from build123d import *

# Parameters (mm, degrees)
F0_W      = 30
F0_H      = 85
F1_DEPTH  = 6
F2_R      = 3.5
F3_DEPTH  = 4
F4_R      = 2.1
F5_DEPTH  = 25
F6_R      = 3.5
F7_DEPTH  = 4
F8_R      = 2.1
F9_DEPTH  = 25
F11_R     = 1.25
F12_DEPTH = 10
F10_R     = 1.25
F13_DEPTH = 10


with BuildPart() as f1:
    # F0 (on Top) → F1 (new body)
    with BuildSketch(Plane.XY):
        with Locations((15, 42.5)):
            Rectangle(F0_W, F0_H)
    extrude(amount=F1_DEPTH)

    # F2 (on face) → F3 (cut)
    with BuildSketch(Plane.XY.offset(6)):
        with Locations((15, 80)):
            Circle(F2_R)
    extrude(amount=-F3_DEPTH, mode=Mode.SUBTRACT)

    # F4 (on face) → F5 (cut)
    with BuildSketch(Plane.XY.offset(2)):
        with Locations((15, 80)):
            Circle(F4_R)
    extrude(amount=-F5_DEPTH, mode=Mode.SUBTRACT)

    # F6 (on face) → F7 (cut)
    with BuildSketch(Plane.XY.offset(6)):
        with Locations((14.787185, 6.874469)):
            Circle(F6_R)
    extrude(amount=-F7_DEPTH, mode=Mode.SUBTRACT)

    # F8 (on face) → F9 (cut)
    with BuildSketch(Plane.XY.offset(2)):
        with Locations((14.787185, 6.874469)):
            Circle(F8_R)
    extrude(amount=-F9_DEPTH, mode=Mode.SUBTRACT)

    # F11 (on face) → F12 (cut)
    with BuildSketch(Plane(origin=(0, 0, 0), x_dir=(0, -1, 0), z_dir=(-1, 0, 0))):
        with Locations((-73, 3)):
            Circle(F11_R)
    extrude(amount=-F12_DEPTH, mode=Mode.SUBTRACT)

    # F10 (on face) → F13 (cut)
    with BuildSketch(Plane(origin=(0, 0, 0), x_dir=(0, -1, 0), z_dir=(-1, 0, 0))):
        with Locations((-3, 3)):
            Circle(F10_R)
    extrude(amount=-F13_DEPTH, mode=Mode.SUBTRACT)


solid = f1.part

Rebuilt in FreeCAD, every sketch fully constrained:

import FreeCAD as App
import Part
import Sketcher

V = App.Vector


def add_polygon(sketch, points):
    """Adds a closed chain of lines whose ends are joined by coincident constraints."""
    first, n = sketch.GeometryCount, len(points)
    for a, b in zip(points, points[1:] + points[:1]):
        sketch.addGeometry(Part.LineSegment(App.Vector(*a, 0), App.Vector(*b, 0)), False)
    for i in range(n):
        sketch.addConstraint(Sketcher.Constraint("Coincident", first + i, 2, first + (i + 1) % n, 1))

doc = App.newDocument("Part")
body = doc.addObject("PartDesign::Body", "Body")

sketch1 = body.newObject("Sketcher::SketchObject", "Sketch")
sketch1.AttachmentSupport = (doc.getObject("XY_Plane"), [""])
sketch1.MapMode = "FlatFace"
add_polygon(sketch1, [(0, 85), (0, 0), (30, 0), (30, 85)])
sketch1.addConstraint(Sketcher.Constraint("Vertical", 0))
sketch1.addConstraint(Sketcher.Constraint("Horizontal", 1))
sketch1.addConstraint(Sketcher.Constraint("Vertical", 2))
sketch1.addConstraint(Sketcher.Constraint("Horizontal", 3))
sketch1.addConstraint(Sketcher.Constraint("Coincident", 0, 2, -1, 1))
sketch1.addConstraint(Sketcher.Constraint("DistanceX", 1, 1, 1, 2, 30.0))
sketch1.addConstraint(Sketcher.Constraint("DistanceY", 0, 2, 0, 1, 85.0))
pad1 = body.newObject("PartDesign::Pad", "Pad")
pad1.Profile = sketch1
pad1.Length = 6

sketch2 = body.newObject("Sketcher::SketchObject", "Sketch001")
sketch2.AttachmentSupport = (doc.getObject("XY_Plane"), [""])
sketch2.MapMode = "FlatFace"
sketch2.AttachmentOffset = App.Placement(V(0, 0, 6), App.Rotation())
sketch2.addGeometry(Part.Circle(V(15, 80, 0), V(0, 0, 1), 3.5), False)
sketch2.addConstraint(Sketcher.Constraint("Diameter", 0, 7.0))
sketch2.addConstraint(Sketcher.Constraint("DistanceX", -1, 1, 0, 3, 15.0))
sketch2.addConstraint(Sketcher.Constraint("DistanceY", -1, 1, 0, 3, 80.0))
pocket1 = body.newObject("PartDesign::Pocket", "Pocket")
pocket1.Profile = sketch2
pocket1.Length = 4

sketch3 = body.newObject("Sketcher::SketchObject", "Sketch002")
sketch3.AttachmentSupport = (doc.getObject("XY_Plane"), [""])
sketch3.MapMode = "FlatFace"
sketch3.AttachmentOffset = App.Placement(V(0, 0, 2), App.Rotation())
sketch3.addGeometry(Part.Circle(V(15, 80, 0), V(0, 0, 1), 2.1), False)
sketch3.addConstraint(Sketcher.Constraint("Diameter", 0, 4.2))
sketch3.addConstraint(Sketcher.Constraint("DistanceX", -1, 1, 0, 3, 15.0))
sketch3.addConstraint(Sketcher.Constraint("DistanceY", -1, 1, 0, 3, 80.0))
pocket2 = body.newObject("PartDesign::Pocket", "Pocket001")
pocket2.Profile = sketch3
pocket2.Length = 25

sketch4 = body.newObject("Sketcher::SketchObject", "Sketch003")
sketch4.AttachmentSupport = (doc.getObject("XY_Plane"), [""])
sketch4.MapMode = "FlatFace"
sketch4.AttachmentOffset = App.Placement(V(0, 0, 6), App.Rotation())
sketch4.addGeometry(Part.Circle(V(14.8, 6.9, 0), V(0, 0, 1), 3.5), False)
sketch4.addConstraint(Sketcher.Constraint("Diameter", 0, 7.0))
sketch4.addConstraint(Sketcher.Constraint("DistanceY", -1, 1, 0, 3, 6.874469))
sketch4.addConstraint(Sketcher.Constraint("DistanceX", -1, 1, 0, 3, 14.787185))
pocket3 = body.newObject("PartDesign::Pocket", "Pocket002")
pocket3.Profile = sketch4
pocket3.Length = 4

sketch5 = body.newObject("Sketcher::SketchObject", "Sketch004")
sketch5.AttachmentSupport = (doc.getObject("XY_Plane"), [""])
sketch5.MapMode = "FlatFace"
sketch5.AttachmentOffset = App.Placement(V(0, 0, 2), App.Rotation())
sketch5.addGeometry(Part.Circle(V(14.8, 6.9, 0), V(0, 0, 1), 2.1), False)
sketch5.addConstraint(Sketcher.Constraint("Diameter", 0, 4.2))
sketch5.addConstraint(Sketcher.Constraint("DistanceY", -1, 1, 0, 3, 6.874469))
sketch5.addConstraint(Sketcher.Constraint("DistanceX", -1, 1, 0, 3, 14.787185))
pocket4 = body.newObject("PartDesign::Pocket", "Pocket003")
pocket4.Profile = sketch5
pocket4.Length = 25

sketch6 = body.newObject("Sketcher::SketchObject", "Sketch005")
sketch6.AttachmentSupport = (doc.getObject("YZ_Plane"), [""])
sketch6.MapMode = "FlatFace"
sketch6.addGeometry(Part.Circle(V(73, 3, 0), V(0, 0, 1), 1.2), False)
sketch6.addConstraint(Sketcher.Constraint("Diameter", 0, 2.5))
sketch6.addConstraint(Sketcher.Constraint("DistanceX", -1, 1, 0, 3, 73.0))
sketch6.addConstraint(Sketcher.Constraint("DistanceY", -1, 1, 0, 3, 3.0))
pocket5 = body.newObject("PartDesign::Pocket", "Pocket004")
pocket5.Profile = sketch6
pocket5.Length = 10
pocket5.Reversed = True

sketch7 = body.newObject("Sketcher::SketchObject", "Sketch006")
sketch7.AttachmentSupport = (doc.getObject("YZ_Plane"), [""])
sketch7.MapMode = "FlatFace"
sketch7.addGeometry(Part.Circle(V(3, 3, 0), V(0, 0, 1), 1.2), False)
sketch7.addConstraint(Sketcher.Constraint("Diameter", 0, 2.5))
sketch7.addConstraint(Sketcher.Constraint("DistanceX", -1, 1, 0, 3, 3.0))
sketch7.addConstraint(Sketcher.Constraint("DistanceY", -1, 1, 0, 3, 3.0))
pocket6 = body.newObject("PartDesign::Pocket", "Pocket005")
pocket6.Profile = sketch7
pocket6.Length = 10
pocket6.Reversed = True

doc.recompute()
